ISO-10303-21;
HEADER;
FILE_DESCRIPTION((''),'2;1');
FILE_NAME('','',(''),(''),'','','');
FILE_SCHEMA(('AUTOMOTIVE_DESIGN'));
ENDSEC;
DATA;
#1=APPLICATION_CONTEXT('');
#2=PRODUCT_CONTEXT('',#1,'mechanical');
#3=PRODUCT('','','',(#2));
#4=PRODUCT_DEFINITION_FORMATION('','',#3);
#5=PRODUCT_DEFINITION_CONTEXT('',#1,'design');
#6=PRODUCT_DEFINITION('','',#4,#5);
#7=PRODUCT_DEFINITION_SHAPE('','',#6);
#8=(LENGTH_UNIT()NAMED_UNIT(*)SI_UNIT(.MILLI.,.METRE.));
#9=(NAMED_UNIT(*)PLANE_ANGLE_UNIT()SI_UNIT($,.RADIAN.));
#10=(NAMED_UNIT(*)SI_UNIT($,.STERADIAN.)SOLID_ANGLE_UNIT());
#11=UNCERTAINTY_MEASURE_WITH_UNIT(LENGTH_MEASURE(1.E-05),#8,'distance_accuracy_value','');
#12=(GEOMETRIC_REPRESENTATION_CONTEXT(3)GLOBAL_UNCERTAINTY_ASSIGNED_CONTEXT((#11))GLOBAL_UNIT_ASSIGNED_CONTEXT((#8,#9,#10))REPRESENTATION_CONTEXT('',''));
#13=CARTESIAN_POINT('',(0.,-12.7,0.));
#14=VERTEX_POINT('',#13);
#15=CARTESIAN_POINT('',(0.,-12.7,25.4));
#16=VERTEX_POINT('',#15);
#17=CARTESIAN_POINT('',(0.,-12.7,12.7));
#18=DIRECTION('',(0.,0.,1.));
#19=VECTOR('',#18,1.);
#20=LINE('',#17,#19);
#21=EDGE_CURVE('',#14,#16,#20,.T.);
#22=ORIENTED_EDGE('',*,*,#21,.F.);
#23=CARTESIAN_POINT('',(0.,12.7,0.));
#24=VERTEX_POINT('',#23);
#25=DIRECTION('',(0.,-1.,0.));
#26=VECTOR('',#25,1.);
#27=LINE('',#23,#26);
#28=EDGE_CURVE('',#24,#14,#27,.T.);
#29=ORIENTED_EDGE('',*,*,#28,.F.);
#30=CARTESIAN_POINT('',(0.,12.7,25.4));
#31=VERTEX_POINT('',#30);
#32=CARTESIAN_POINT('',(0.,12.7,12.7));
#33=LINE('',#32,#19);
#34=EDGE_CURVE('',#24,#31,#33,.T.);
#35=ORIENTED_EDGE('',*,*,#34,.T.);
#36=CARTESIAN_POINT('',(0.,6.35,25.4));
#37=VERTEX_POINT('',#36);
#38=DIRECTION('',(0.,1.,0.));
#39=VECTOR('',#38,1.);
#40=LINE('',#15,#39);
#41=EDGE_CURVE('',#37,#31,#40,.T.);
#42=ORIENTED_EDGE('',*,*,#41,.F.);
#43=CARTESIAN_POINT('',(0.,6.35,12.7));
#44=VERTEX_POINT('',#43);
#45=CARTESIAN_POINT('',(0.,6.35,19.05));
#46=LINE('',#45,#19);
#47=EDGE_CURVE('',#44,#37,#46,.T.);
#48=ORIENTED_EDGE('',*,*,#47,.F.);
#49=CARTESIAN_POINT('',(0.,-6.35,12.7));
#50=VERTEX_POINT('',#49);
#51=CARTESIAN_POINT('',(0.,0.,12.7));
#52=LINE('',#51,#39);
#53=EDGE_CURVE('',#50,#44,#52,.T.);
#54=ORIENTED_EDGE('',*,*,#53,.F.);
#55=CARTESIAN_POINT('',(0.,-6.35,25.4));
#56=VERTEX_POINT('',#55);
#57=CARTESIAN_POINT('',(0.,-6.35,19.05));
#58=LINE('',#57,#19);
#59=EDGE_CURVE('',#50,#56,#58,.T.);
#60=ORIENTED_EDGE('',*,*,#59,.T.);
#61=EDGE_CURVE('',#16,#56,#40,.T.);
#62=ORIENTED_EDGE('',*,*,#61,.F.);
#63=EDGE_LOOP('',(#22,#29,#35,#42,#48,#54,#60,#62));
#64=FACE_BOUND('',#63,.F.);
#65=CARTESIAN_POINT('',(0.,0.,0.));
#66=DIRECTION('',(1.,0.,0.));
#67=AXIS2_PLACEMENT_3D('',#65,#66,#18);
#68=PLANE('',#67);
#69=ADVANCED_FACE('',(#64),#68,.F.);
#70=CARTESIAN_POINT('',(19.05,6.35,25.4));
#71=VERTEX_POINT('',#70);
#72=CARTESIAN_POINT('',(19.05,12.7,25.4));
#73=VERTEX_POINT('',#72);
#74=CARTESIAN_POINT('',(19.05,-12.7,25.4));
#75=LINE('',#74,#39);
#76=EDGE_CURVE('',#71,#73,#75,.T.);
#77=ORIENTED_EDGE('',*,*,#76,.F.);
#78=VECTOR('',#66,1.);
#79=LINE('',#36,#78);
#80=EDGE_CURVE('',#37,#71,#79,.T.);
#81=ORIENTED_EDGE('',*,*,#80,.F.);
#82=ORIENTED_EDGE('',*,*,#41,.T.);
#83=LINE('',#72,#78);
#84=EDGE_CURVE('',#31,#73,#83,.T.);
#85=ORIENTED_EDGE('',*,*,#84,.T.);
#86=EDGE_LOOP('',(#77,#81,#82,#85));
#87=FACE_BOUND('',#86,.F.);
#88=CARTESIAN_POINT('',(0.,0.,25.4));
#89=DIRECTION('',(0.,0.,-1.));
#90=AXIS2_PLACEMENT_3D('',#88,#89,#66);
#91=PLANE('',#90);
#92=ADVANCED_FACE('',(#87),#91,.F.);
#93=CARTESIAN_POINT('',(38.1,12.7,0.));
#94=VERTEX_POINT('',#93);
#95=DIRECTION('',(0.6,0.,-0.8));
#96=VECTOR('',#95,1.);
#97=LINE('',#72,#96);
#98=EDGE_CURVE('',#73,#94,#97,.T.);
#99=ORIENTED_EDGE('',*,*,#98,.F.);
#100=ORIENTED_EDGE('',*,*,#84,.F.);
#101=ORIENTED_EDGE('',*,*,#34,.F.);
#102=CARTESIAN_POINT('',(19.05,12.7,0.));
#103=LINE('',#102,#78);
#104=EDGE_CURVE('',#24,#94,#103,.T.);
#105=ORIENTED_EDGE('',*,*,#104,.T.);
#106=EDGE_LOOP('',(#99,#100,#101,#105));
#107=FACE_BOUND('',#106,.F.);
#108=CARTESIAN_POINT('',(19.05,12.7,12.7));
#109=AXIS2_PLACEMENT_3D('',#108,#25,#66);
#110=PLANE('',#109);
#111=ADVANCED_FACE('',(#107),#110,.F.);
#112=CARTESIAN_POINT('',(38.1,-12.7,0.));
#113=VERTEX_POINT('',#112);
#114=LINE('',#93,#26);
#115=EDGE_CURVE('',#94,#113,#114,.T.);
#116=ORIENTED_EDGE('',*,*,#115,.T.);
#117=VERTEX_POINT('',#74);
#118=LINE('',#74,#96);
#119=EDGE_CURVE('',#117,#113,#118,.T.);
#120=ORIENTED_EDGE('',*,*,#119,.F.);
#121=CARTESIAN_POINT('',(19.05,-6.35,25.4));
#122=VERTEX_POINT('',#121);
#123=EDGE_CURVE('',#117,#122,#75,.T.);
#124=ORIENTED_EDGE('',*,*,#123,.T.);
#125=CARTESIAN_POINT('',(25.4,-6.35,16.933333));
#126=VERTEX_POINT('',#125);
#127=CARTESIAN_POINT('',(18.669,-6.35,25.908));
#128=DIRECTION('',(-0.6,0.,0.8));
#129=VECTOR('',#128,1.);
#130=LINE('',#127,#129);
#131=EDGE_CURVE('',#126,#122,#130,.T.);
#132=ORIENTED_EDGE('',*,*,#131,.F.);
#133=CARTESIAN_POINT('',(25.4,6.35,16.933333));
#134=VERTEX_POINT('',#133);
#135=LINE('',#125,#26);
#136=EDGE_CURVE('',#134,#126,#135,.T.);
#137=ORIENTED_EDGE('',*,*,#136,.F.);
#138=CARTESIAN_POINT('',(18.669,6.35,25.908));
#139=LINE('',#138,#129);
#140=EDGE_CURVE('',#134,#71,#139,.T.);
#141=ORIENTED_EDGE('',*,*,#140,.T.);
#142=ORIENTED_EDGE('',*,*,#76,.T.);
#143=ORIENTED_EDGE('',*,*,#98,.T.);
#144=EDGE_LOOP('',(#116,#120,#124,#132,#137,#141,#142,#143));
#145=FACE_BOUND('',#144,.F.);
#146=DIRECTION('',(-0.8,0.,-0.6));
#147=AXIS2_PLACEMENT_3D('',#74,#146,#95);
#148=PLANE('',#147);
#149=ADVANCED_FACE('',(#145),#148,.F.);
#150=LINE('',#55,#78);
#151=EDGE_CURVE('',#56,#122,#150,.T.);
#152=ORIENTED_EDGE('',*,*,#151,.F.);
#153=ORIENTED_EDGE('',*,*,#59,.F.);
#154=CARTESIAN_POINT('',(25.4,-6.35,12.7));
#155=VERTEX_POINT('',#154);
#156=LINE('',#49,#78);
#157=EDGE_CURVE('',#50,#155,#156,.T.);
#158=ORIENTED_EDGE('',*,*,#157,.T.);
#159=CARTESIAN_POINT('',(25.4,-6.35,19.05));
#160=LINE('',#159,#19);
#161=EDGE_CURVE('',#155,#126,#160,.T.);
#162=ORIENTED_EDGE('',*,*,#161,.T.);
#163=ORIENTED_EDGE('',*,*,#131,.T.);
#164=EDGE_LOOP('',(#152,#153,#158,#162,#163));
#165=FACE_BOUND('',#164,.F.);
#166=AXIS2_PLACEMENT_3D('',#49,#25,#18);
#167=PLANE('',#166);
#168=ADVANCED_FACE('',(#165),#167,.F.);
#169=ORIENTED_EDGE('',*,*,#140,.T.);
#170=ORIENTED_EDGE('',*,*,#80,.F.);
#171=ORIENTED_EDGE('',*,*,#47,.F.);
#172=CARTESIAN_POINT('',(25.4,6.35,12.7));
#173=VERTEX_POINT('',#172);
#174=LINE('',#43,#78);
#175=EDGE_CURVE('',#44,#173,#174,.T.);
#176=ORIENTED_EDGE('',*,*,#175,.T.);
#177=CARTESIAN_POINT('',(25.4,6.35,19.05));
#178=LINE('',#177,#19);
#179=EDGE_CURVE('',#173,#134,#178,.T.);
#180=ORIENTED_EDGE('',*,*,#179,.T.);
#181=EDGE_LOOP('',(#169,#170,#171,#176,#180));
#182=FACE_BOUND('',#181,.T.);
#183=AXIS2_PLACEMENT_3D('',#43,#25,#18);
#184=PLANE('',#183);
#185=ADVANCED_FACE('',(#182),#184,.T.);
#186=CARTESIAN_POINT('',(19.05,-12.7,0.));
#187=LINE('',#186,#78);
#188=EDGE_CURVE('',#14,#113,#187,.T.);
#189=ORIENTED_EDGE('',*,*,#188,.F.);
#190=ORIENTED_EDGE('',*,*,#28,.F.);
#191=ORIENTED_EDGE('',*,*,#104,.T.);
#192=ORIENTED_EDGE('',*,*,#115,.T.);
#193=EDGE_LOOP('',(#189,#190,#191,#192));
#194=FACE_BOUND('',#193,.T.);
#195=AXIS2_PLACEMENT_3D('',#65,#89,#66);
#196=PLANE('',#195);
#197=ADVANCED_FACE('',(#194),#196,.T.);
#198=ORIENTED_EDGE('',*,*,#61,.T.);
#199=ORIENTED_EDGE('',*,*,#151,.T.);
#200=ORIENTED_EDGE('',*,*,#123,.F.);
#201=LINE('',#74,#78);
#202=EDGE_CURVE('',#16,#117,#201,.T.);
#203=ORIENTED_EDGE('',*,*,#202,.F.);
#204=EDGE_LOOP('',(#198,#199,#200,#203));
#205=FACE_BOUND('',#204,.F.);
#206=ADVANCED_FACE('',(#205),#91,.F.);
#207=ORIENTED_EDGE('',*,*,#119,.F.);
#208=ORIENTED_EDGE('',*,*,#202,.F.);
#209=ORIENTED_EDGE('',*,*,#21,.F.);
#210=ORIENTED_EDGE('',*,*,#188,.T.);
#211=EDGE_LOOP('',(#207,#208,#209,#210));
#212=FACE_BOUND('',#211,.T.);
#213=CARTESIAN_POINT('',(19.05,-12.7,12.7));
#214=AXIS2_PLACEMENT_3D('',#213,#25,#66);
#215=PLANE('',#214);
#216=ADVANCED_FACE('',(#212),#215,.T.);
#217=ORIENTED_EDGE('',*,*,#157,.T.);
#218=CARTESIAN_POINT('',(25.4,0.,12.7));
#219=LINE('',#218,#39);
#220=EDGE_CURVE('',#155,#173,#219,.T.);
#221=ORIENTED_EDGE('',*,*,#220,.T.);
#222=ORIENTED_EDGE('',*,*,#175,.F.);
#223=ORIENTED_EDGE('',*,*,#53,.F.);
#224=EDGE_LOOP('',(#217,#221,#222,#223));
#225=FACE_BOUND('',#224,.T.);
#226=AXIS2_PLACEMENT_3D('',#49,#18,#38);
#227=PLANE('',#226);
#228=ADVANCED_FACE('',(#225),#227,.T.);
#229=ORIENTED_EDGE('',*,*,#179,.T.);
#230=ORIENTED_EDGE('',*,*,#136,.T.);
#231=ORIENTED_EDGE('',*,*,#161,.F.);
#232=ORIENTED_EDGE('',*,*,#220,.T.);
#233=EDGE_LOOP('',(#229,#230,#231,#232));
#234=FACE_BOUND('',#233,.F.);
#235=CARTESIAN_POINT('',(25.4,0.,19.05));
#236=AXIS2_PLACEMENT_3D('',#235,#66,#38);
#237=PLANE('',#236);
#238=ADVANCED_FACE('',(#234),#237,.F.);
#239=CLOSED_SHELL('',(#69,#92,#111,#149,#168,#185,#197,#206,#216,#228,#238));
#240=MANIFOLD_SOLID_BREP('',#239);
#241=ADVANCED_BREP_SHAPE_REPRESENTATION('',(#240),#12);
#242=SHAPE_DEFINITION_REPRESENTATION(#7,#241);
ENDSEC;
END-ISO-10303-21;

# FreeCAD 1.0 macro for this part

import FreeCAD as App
import Part
import Sketcher
from FreeCAD import Vector
Q = App.Units.Quantity


def add_polygon(sketch, points):
    """Adds a closed chain of lines whose ends are joined by coincident constraints."""
    first, n = sketch.GeometryCount, len(points)
    for a, b in zip(points, points[1:] + points[:1]):
        sketch.addGeometry(Part.LineSegment(App.Vector(*a, 0), App.Vector(*b, 0)), False)
    for i in range(n):
        sketch.addConstraint(Sketcher.Constraint("Coincident", first + i, 2, first + (i + 1) % n, 1))

doc = App.newDocument("Part")
body = doc.addObject("PartDesign::Body", "Body")

# Sketch on XZ plane
sketch1 = body.newObject("Sketcher::SketchObject", "Sketch")
sketch1.AttachmentSupport = (doc.getObject("XZ_Plane"), [""])
sketch1.MapMode = "FlatFace"
add_polygon(sketch1, [(0, 25.4), (0, 0), (38.1, 0), (38.1, 25.4)])  # lines 0-3
sketch1.addConstraint([
    Sketcher.Constraint("Vertical", 0),
    Sketcher.Constraint("Horizontal", 1),
    Sketcher.Constraint("Vertical", 2),
    Sketcher.Constraint("Horizontal", 3),
    Sketcher.Constraint("Coincident", 0, 2, -1, 1),
    Sketcher.Constraint("DistanceY", 0, 2, 0, 1, Q("1 in")),
    Sketcher.Constraint("DistanceX", 1, 1, 1, 2, Q("1.5 in")),
])
pad1 = body.newObject("PartDesign::Pad", "Pad")
pad1.Profile = sketch1
pad1.Length = Q("1 in")
pad1.Midplane = True

# Sketch on XZ plane
sketch2 = body.newObject("Sketcher::SketchObject", "Sketch001")
sketch2.AttachmentSupport = (doc.getObject("XZ_Plane"), [""])
sketch2.MapMode = "FlatFace"
sketch2.AttachmentOffset = App.Placement(Vector(0, 0, 0.5 * 25.4), App.Rotation())
add_polygon(sketch2, [(38.1, 25.4), (19.05, 25.4), (38.1, 0)])  # lines 0-2
sketch2.addConstraint([
    Sketcher.Constraint("Horizontal", 0),
    Sketcher.Constraint("Vertical", 2),
    Sketcher.Constraint("PointOnObject", 1, 2, -1),
    Sketcher.Constraint("DistanceY", 2, 1, 2, 2, Q("1 in")),
    Sketcher.Constraint("DistanceX", 0, 2, 0, 1, Q("0.75 in")),
    Sketcher.Constraint("DistanceX", -1, 1, 1, 2, Q("1.5 in")),
])
pocket1 = body.newObject("PartDesign::Pocket", "Pocket")
pocket1.Profile = sketch2
pocket1.Length = Q("1 in")

# Sketch on YZ plane
sketch3 = body.newObject("Sketcher::SketchObject", "Sketch002")
sketch3.AttachmentSupport = (doc.getObject("YZ_Plane"), [""])
sketch3.MapMode = "FlatFace"
add_polygon(sketch3, [(-6.35, 25.4), (-6.35, 12.7), (6.35, 12.7), (6.35, 25.4)])  # lines 0-3
sketch3.addConstraint([
    Sketcher.Constraint("Vertical", 0),
    Sketcher.Constraint("Horizontal", 1),
    Sketcher.Constraint("Vertical", 2),
    Sketcher.Constraint("Horizontal", 3),
    Sketcher.Constraint("Equal", 3, 0),
    Sketcher.Constraint("DistanceX", 1, 1, 1, 2, Q("0.5 in")),
    Sketcher.Constraint("DistanceY", -1, 1, 2, 2, Q("1 in")),
    Sketcher.Constraint("DistanceX", 0, 2, -1, 1, Q("0.25 in")),
])
pocket2 = body.newObject("PartDesign::Pocket", "Pocket001")
pocket2.Profile = sketch3
pocket2.Length = Q("1 in")
pocket2.Reversed = True

doc.recompute()
